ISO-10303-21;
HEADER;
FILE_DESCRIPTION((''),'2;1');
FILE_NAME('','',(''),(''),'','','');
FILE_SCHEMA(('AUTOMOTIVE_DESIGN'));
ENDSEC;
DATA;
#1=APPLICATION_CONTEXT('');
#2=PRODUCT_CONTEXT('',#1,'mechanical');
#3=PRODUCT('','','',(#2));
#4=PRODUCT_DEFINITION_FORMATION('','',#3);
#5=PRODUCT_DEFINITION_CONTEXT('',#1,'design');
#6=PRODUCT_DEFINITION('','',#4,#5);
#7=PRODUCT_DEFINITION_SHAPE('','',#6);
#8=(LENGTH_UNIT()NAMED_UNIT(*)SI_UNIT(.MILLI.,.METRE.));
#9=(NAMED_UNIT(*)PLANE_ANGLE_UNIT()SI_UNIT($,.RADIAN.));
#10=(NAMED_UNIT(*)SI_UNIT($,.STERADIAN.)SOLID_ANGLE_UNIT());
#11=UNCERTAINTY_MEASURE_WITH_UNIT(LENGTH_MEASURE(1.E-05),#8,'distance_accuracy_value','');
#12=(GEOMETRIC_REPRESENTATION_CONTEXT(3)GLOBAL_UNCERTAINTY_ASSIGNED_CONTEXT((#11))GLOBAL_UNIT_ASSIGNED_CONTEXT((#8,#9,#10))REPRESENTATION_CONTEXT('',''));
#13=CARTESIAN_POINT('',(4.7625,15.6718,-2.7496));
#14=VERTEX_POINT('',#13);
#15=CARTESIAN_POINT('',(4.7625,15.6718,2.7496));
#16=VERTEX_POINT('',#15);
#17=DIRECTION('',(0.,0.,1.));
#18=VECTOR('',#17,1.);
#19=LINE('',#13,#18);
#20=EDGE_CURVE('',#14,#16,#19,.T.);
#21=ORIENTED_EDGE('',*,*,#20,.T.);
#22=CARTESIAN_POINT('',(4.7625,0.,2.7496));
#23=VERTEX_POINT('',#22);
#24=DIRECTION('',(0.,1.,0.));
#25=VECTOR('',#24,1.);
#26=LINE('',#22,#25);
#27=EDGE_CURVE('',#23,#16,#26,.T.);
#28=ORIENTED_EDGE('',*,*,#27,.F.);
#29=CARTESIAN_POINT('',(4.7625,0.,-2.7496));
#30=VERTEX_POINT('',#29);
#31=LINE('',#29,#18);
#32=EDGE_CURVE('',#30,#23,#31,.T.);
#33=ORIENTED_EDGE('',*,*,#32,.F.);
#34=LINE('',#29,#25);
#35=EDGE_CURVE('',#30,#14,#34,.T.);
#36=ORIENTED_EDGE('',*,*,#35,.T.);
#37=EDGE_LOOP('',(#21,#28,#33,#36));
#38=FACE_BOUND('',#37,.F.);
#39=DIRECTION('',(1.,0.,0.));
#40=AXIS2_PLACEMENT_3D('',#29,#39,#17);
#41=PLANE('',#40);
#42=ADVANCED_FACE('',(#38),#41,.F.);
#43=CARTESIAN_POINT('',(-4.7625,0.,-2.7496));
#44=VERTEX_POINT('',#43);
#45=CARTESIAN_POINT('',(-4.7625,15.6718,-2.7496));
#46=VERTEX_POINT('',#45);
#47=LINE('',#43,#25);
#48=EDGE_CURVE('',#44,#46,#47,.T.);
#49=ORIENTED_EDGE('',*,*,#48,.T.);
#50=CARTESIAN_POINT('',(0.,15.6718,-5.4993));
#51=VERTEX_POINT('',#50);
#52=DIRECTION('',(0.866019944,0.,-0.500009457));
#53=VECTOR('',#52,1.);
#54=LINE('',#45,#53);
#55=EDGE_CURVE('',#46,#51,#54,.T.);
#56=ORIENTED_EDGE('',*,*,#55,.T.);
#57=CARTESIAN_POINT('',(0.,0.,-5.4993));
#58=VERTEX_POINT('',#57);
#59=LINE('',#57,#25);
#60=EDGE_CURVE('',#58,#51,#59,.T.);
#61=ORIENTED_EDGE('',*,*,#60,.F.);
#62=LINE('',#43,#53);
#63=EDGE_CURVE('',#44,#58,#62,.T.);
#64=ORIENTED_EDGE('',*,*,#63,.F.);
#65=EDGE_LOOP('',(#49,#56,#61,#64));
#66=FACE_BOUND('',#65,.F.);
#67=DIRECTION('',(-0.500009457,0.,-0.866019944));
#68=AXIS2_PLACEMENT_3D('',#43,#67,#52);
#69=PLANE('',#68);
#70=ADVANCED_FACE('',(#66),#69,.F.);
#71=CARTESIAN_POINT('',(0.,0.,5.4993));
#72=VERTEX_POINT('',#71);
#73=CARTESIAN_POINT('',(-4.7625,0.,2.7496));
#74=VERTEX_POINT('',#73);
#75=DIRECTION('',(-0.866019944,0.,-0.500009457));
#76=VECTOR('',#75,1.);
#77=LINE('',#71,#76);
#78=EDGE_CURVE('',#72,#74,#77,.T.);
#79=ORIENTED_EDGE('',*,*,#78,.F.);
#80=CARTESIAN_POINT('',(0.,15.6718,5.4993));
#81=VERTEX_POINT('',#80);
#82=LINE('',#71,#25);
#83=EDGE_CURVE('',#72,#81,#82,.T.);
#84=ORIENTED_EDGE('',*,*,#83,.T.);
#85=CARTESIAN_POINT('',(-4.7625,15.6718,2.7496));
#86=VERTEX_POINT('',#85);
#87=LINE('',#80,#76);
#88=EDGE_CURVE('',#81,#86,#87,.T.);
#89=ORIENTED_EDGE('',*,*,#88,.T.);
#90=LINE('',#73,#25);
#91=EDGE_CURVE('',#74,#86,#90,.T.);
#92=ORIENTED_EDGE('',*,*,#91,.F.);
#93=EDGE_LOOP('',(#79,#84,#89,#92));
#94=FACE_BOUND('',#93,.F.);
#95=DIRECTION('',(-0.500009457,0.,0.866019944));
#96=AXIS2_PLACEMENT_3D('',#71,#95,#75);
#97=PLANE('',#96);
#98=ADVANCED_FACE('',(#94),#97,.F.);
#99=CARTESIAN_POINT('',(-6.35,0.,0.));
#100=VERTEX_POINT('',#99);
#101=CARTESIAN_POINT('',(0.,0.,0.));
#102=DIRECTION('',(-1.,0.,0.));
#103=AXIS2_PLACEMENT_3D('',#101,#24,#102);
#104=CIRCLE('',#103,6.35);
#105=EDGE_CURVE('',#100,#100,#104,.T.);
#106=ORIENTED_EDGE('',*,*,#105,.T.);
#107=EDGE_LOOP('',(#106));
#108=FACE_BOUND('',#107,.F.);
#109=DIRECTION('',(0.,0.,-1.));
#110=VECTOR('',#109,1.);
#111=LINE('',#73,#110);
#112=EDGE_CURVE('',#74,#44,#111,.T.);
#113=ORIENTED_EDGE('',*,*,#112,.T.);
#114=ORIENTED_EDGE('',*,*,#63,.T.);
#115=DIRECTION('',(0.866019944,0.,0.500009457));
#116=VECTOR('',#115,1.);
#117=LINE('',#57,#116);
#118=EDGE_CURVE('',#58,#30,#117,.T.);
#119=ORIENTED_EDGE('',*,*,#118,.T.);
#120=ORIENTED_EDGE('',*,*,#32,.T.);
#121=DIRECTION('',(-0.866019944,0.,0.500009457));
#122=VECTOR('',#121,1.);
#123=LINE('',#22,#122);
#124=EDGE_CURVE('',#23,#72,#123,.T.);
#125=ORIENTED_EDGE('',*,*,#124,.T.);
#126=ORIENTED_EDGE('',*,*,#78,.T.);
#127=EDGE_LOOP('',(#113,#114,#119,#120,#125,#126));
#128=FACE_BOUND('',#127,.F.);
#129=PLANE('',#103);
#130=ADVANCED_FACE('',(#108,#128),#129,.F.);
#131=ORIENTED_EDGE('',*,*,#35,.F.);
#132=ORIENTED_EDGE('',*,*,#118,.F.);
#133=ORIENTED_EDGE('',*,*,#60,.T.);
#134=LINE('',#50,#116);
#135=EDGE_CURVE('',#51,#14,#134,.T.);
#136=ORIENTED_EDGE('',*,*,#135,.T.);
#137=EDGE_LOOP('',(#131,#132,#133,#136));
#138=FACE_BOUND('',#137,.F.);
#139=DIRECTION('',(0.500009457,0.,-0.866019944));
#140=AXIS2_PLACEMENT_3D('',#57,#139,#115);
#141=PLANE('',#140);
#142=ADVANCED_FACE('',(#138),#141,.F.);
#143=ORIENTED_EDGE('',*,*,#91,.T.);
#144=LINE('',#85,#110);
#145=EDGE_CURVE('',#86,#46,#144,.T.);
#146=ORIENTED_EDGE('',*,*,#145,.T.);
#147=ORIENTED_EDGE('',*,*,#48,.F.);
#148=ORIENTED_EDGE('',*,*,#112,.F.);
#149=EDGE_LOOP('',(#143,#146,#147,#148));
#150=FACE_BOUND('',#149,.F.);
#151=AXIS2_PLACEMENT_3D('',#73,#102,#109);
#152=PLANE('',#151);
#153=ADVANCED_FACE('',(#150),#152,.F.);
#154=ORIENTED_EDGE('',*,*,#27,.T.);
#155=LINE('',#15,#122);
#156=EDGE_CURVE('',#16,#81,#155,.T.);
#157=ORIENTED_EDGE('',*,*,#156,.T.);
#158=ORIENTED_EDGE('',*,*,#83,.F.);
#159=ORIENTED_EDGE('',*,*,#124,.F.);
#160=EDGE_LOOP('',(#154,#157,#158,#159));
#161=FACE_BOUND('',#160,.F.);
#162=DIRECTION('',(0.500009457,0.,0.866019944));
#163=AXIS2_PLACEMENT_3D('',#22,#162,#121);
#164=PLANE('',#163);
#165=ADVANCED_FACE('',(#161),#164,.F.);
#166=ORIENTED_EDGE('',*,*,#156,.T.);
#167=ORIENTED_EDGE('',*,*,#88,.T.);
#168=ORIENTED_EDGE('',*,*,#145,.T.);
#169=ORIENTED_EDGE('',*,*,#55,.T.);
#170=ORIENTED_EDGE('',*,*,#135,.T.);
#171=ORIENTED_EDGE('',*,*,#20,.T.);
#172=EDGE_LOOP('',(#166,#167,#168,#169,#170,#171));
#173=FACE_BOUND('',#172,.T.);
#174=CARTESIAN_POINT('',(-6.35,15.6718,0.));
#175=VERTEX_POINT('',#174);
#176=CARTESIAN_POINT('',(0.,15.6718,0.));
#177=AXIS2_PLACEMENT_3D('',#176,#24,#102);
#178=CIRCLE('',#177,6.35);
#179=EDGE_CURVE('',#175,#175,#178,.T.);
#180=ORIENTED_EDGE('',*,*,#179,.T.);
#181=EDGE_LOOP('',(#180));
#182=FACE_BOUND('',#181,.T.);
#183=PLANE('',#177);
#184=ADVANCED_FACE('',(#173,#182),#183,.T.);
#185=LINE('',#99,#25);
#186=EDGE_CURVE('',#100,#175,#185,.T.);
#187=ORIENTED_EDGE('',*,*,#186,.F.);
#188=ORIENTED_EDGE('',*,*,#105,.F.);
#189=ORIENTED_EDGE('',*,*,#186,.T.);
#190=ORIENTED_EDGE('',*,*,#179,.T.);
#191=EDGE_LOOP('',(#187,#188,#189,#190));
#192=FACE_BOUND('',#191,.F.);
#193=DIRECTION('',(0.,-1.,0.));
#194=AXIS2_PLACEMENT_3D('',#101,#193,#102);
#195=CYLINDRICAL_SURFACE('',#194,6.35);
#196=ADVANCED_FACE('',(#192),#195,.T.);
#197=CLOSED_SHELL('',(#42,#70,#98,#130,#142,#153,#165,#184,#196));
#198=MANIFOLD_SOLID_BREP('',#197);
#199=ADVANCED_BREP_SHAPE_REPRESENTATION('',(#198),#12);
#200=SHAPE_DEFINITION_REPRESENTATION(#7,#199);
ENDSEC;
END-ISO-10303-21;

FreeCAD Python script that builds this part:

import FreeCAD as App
import Part
import Sketcher
from FreeCAD import Vector
Q = App.Units.Quantity

doc = App.newDocument("Part")
body = doc.addObject("PartDesign::Body", "Body")

# Sketch on XZ plane
sketch1 = body.newObject("Sketcher::SketchObject", "Sketch")
sketch1.AttachmentSupport = (doc.getObject("XZ_Plane"), [""])
sketch1.MapMode = "FlatFace"
sketch1.addGeometry([
    Part.Circle(Vector(0, 0, 0), Vector(0, 0, 1), 6.35),  # 0
    Part.LineSegment(Vector(-4.7625, -2.7496, 0), Vector(0, -5.4993, 0)),  # 1
    Part.LineSegment(Vector(0, -5.4993, 0), Vector(4.7625, -2.7496, 0)),  # 2
    Part.LineSegment(Vector(4.7625, -2.7496, 0), Vector(4.7625, 2.7496, 0)),  # 3
    Part.LineSegment(Vector(4.7625, 2.7496, 0), Vector(0, 5.4993, 0)),  # 4
    Part.LineSegment(Vector(0, 5.4993, 0), Vector(-4.7625, 2.7496, 0)),  # 5
    Part.LineSegment(Vector(-4.7625, 2.7496, 0), Vector(-4.7625, -2.7496, 0)),  # 6
], False)
sketch1.addConstraint([
    Sketcher.Constraint("Coincident", 1, 2, 2, 1),
    Sketcher.Constraint("Coincident", 2, 2, 3, 1),
    Sketcher.Constraint("Coincident", 3, 2, 4, 1),
    Sketcher.Constraint("Coincident", 4, 2, 5, 1),
    Sketcher.Constraint("Coincident", 5, 2, 6, 1),
    Sketcher.Constraint("Coincident", 6, 2, 1, 1),
    Sketcher.Constraint("Vertical", 3),
    Sketcher.Constraint("Vertical", 6),
    Sketcher.Constraint("Coincident", 0, 3, -1, 1),
    Sketcher.Constraint("Symmetric", 1, 2, 4, 2, -1, 1),
    Sketcher.Constraint("Symmetric", 2, 2, 5, 2, -1, 1),
    Sketcher.Constraint("PointOnObject", 1, 2, -2),
    Sketcher.Constraint("Parallel", 1, 4),
    Sketcher.Constraint("Horizontal", 3, 2, 5, 2),
    Sketcher.Constraint("Diameter", 0, Q("0.5 in")),
    Sketcher.Constraint("Angle", 1, Q("-30.0006 deg")),
    Sketcher.Constraint("DistanceX", 5, 2, 3, 2, Q("0.375 in")),
    Sketcher.Constraint("DistanceY", 3, 1, 3, 2, Q("0.2165 in")),
])
pad1 = body.newObject("PartDesign::Pad", "Pad")
pad1.Profile = sketch1
pad1.Length = Q("0.617 in")
pad1.Reversed = True

doc.recompute()
